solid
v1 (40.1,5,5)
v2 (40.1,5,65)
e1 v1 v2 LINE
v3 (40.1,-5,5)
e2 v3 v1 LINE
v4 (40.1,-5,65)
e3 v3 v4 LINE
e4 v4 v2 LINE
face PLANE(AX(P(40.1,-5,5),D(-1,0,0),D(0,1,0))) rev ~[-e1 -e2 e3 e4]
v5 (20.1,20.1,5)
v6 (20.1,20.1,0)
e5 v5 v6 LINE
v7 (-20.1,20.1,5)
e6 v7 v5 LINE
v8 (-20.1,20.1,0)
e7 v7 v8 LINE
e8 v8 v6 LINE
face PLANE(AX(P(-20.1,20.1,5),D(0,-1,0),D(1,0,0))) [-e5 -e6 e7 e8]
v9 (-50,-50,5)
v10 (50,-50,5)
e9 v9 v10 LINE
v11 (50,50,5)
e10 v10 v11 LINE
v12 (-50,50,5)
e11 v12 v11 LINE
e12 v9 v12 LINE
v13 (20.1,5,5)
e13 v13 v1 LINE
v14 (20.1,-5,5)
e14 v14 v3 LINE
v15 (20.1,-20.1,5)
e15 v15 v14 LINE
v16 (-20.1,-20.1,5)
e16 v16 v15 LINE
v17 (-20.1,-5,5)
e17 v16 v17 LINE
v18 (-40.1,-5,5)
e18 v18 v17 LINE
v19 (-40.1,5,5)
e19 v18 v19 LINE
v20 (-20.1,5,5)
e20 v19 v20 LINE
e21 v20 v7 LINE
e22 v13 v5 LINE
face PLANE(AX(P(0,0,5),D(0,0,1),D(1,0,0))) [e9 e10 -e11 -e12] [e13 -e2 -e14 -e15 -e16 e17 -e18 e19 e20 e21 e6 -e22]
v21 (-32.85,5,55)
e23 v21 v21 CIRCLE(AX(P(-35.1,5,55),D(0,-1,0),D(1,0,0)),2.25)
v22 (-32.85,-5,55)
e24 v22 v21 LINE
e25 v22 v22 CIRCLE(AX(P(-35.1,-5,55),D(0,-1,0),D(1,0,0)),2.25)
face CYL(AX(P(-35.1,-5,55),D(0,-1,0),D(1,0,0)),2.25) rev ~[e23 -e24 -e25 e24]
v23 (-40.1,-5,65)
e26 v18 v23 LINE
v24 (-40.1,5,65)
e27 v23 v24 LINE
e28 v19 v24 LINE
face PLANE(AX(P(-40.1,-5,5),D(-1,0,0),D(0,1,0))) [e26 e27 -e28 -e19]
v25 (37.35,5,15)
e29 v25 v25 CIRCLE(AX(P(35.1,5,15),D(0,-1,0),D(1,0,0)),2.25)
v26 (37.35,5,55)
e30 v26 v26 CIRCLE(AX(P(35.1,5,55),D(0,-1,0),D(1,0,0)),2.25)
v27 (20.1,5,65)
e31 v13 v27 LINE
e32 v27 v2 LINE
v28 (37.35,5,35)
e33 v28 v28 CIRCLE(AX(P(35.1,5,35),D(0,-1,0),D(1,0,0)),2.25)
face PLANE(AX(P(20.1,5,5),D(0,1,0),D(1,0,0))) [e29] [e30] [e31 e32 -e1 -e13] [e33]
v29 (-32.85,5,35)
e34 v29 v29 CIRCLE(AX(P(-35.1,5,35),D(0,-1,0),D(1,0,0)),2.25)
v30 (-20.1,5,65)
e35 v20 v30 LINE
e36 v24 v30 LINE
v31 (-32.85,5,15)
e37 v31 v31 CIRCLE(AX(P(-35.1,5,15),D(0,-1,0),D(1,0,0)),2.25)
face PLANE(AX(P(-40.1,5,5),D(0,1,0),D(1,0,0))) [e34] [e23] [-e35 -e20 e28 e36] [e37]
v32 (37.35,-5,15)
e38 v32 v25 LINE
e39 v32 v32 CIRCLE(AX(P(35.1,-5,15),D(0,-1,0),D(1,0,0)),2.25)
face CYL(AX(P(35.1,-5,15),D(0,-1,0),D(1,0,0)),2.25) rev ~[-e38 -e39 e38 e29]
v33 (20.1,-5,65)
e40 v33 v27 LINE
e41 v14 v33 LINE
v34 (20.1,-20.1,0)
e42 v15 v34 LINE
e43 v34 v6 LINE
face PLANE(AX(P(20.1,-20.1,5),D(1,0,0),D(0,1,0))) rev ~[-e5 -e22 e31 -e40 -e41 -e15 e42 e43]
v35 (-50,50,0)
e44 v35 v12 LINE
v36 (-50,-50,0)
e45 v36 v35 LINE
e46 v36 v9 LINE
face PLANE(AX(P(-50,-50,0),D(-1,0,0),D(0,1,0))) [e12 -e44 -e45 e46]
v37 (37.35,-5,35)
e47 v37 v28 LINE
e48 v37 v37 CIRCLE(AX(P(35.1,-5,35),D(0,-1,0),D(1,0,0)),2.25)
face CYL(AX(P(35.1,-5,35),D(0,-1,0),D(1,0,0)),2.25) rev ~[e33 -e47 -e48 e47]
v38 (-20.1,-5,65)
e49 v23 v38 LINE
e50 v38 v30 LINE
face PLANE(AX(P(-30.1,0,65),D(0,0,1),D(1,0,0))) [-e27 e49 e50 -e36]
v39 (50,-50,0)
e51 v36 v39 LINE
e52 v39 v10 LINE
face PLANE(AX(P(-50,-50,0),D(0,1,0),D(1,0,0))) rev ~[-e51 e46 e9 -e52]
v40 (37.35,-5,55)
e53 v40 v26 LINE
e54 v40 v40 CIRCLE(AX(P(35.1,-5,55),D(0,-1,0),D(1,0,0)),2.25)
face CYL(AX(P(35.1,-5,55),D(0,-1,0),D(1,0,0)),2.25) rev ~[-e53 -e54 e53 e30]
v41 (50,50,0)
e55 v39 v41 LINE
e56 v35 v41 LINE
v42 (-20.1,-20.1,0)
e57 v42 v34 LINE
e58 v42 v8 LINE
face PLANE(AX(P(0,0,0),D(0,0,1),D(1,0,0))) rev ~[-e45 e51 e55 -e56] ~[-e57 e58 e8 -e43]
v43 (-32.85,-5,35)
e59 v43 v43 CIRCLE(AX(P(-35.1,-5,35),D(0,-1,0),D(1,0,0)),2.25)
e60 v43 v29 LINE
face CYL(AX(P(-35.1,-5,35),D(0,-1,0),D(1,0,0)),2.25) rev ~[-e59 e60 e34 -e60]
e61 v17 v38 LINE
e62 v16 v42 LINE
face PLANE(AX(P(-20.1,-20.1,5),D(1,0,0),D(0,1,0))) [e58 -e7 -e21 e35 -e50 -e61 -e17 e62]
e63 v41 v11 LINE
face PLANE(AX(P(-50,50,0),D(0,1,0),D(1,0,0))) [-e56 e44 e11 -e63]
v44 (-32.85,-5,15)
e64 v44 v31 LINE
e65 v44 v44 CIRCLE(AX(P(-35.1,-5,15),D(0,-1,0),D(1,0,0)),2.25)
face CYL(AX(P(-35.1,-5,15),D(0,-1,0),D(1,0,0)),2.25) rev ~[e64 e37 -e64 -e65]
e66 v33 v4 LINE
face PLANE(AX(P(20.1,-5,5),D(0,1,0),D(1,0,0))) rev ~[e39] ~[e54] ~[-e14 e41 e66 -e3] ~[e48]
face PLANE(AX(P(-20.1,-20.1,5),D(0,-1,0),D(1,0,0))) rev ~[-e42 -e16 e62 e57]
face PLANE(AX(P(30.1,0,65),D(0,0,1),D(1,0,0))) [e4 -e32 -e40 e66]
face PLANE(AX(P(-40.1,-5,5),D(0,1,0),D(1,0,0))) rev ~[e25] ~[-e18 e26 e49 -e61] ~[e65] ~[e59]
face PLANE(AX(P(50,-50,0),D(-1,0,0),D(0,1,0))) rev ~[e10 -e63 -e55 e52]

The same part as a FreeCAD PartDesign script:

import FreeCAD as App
import Part
import Sketcher

V = App.Vector
Q = App.Units.Quantity

doc = App.newDocument("Part")
params = doc.addObject("Spreadsheet::Sheet", "Params")
for row, (alias, value) in enumerate([
    ("sketch1_width", "100 mm"),
    ("pad1_length", "5 mm"),
    ("sketch2_width", "40.2 mm"),
    ("pocket1_length", "5 mm"),
    ("sketch3_width", "20 mm"),
    ("sketch3_height", "10 mm"),
    ("pad2_length", "60 mm"),
    ("sketch4_diameter", "4.5 mm"),
    ("pocket2_length", "10 mm"),
], start=1):
    params.set(f"A{row}", alias)
    params.set(f"B{row}", "=" + value)
    params.setAlias(f"B{row}", alias)

body = doc.addObject("PartDesign::Body", "Body")

# Sketch on XY plane
sketch1 = body.newObject("Sketcher::SketchObject", "Sketch")
sketch1.AttachmentSupport = (doc.getObject("XY_Plane"), [""])
sketch1.MapMode = "FlatFace"
sketch1.addGeometry(Part.LineSegment(V(-50, 50, 0), V(-50, -50, 0)), False)
sketch1.addGeometry(Part.LineSegment(V(-50, -50, 0), V(50, -50, 0)), False)
sketch1.addGeometry(Part.LineSegment(V(50, -50, 0), V(50, 50, 0)), False)
sketch1.addGeometry(Part.LineSegment(V(50, 50, 0), V(-50, 50, 0)), False)
sketch1.addConstraint(Sketcher.Constraint("Coincident", 0, 2, 1, 1))
sketch1.addConstraint(Sketcher.Constraint("Coincident", 1, 2, 2, 1))
sketch1.addConstraint(Sketcher.Constraint("Coincident", 2, 2, 3, 1))
sketch1.addConstraint(Sketcher.Constraint("Coincident", 3, 2, 0, 1))
sketch1.addConstraint(Sketcher.Constraint("Vertical", 0))
sketch1.addConstraint(Sketcher.Constraint("Horizontal", 1))
sketch1.addConstraint(Sketcher.Constraint("Vertical", 2))
sketch1.addConstraint(Sketcher.Constraint("Horizontal", 3))
sketch1.addConstraint(Sketcher.Constraint("Symmetric", 0, 2, 2, 2, -1, 1))
sketch1.addConstraint(Sketcher.Constraint("Equal", 3, 0))
sketch1.addConstraint(Sketcher.Constraint("DistanceX", 1, 1, 1, 2, Q("100 mm")))
sketch1.setExpression("Constraints[10]", "Params.sketch1_width")
pad1 = body.newObject("PartDesign::Pad", "Pad")
pad1.Profile = sketch1
pad1.setExpression("Length", "Params.pad1_length")

# Sketch on XY plane
sketch2 = body.newObject("Sketcher::SketchObject", "Sketch001")
sketch2.AttachmentSupport = (doc.getObject("XY_Plane"), [""])
sketch2.MapMode = "FlatFace"
sketch2.AttachmentOffset = App.Placement(V(0, 0, 5), App.Rotation())
sketch2.addGeometry(Part.LineSegment(V(-20.1, 20.1, 0), V(-20.1, -20.1, 0)), False)
sketch2.addGeometry(Part.LineSegment(V(-20.1, -20.1, 0), V(20.1, -20.1, 0)), False)
sketch2.addGeometry(Part.LineSegment(V(20.1, -20.1, 0), V(20.1, 20.1, 0)), False)
sketch2.addGeometry(Part.LineSegment(V(20.1, 20.1, 0), V(-20.1, 20.1, 0)), False)
sketch2.addConstraint(Sketcher.Constraint("Coincident", 0, 2, 1, 1))
sketch2.addConstraint(Sketcher.Constraint("Coincident", 1, 2, 2, 1))
sketch2.addConstraint(Sketcher.Constraint("Coincident", 2, 2, 3, 1))
sketch2.addConstraint(Sketcher.Constraint("Coincident", 3, 2, 0, 1))
sketch2.addConstraint(Sketcher.Constraint("Vertical", 0))
sketch2.addConstraint(Sketcher.Constraint("Horizontal", 1))
sketch2.addConstraint(Sketcher.Constraint("Vertical", 2))
sketch2.addConstraint(Sketcher.Constraint("Horizontal", 3))
sketch2.addConstraint(Sketcher.Constraint("Symmetric", 0, 2, 2, 2, -1, 1))
sketch2.addConstraint(Sketcher.Constraint("Equal", 3, 0))
sketch2.addConstraint(Sketcher.Constraint("DistanceX", 1, 1, 1, 2, Q("40.2 mm")))
sketch2.setExpression("Constraints[10]", "Params.sketch2_width")
pocket1 = body.newObject("PartDesign::Pocket", "Pocket")
pocket1.Profile = sketch2
pocket1.setExpression("Length", "Params.pocket1_length")

# Sketch on XY plane
sketch3 = body.newObject("Sketcher::SketchObject", "Sketch002")
sketch3.AttachmentSupport = (doc.getObject("XY_Plane"), [""])
sketch3.MapMode = "FlatFace"
sketch3.AttachmentOffset = App.Placement(V(0, 0, 5), App.Rotation())
sketch3.addGeometry(Part.LineSegment(V(-40.1, 5, 0), V(-40.1, -5, 0)), False)
sketch3.addGeometry(Part.LineSegment(V(-40.1, -5, 0), V(-20.1, -5, 0)), False)
sketch3.addGeometry(Part.LineSegment(V(-20.1, -5, 0), V(-20.1, 5, 0)), False)
sketch3.addGeometry(Part.LineSegment(V(-20.1, 5, 0), V(-40.1, 5, 0)), False)
sketch3.addGeometry(Part.LineSegment(V(20.1, 5, 0), V(20.1, -5, 0)), False)
sketch3.addGeometry(Part.LineSegment(V(20.1, -5, 0), V(40.1, -5, 0)), False)
sketch3.addGeometry(Part.LineSegment(V(40.1, -5, 0), V(40.1, 5, 0)), False)
sketch3.addGeometry(Part.LineSegment(V(40.1, 5, 0), V(20.1, 5, 0)), False)
sketch3.addConstraint(Sketcher.Constraint("Coincident", 0, 2, 1, 1))
sketch3.addConstraint(Sketcher.Constraint("Coincident", 1, 2, 2, 1))
sketch3.addConstraint(Sketcher.Constraint("Coincident", 2, 2, 3, 1))
sketch3.addConstraint(Sketcher.Constraint("Coincident", 3, 2, 0, 1))
sketch3.addConstraint(Sketcher.Constraint("Coincident", 4, 2, 5, 1))
sketch3.addConstraint(Sketcher.Constraint("Coincident", 5, 2, 6, 1))
sketch3.addConstraint(Sketcher.Constraint("Coincident", 6, 2, 7, 1))
sketch3.addConstraint(Sketcher.Constraint("Coincident", 7, 2, 4, 1))
sketch3.addConstraint(Sketcher.Constraint("Vertical", 0))
sketch3.addConstraint(Sketcher.Constraint("Horizontal", 1))
sketch3.addConstraint(Sketcher.Constraint("Vertical", 2))
sketch3.addConstraint(Sketcher.Constraint("Horizontal", 3))
sketch3.addConstraint(Sketcher.Constraint("Vertical", 4))
sketch3.addConstraint(Sketcher.Constraint("Horizontal", 5))
sketch3.addConstraint(Sketcher.Constraint("Vertical", 6))
sketch3.addConstraint(Sketcher.Constraint("Horizontal", 7))
sketch3.addConstraint(Sketcher.Constraint("Symmetric", 2, 2, 4, 2, -1, 1))
sketch3.addConstraint(Sketcher.Constraint("Symmetric", 0, 2, 6, 2, -1, 1))
sketch3.addConstraint(Sketcher.Constraint("Horizontal", 1, 2, 4, 2))
sketch3.addConstraint(Sketcher.Constraint("DistanceX", 1, 1, 1, 2, Q("20 mm")))
sketch3.addConstraint(Sketcher.Constraint("DistanceY", 0, 2, 0, 1, Q("10 mm")))
sketch3.addConstraint(Sketcher.Constraint("DistanceX", 0, 2, -1, 1, Q("40.1 mm")))
sketch3.setExpression("Constraints[19]", "Params.sketch3_width")
sketch3.setExpression("Constraints[20]", "Params.sketch3_height")
pad2 = body.newObject("PartDesign::Pad", "Pad001")
pad2.Profile = sketch3
pad2.setExpression("Length", "Params.pad2_length")

# Sketch on XZ plane
sketch4 = body.newObject("Sketcher::SketchObject", "Sketch003")
sketch4.AttachmentSupport = (doc.getObject("XZ_Plane"), [""])
sketch4.MapMode = "FlatFace"
sketch4.AttachmentOffset = App.Placement(V(0, 0, 5), App.Rotation())
sketch4.addGeometry(Part.Circle(V(-35.1, 15, 0), V(0, 0, 1), 2.25), False)
sketch4.addGeometry(Part.Circle(V(35.1, 15, 0), V(0, 0, 1), 2.25), False)
sketch4.addGeometry(Part.Circle(V(-35.1, 35, 0), V(0, 0, 1), 2.25), False)
sketch4.addGeometry(Part.Circle(V(-35.1, 55, 0), V(0, 0, 1), 2.25), False)
sketch4.addGeometry(Part.Circle(V(-35.1, 75, 0), V(0, 0, 1), 2.25), False)
sketch4.addGeometry(Part.Circle(V(35.1, 75, 0), V(0, 0, 1), 2.25), False)
sketch4.addGeometry(Part.Circle(V(35.1, 55, 0), V(0, 0, 1), 2.25), False)
sketch4.addGeometry(Part.Circle(V(35.1, 35, 0), V(0, 0, 1), 2.25), False)
sketch4.addConstraint(Sketcher.Constraint("Equal", 0, 1))
sketch4.addConstraint(Sketcher.Constraint("Equal", 1, 2))
sketch4.addConstraint(Sketcher.Constraint("Equal", 2, 3))
sketch4.addConstraint(Sketcher.Constraint("Equal", 3, 4))
sketch4.addConstraint(Sketcher.Constraint("Equal", 4, 5))
sketch4.addConstraint(Sketcher.Constraint("Equal", 5, 6))
sketch4.addConstraint(Sketcher.Constraint("Equal", 6, 7))
sketch4.addConstraint(Sketcher.Constraint("Symmetric", 0, 3, 1, 3, -2))
sketch4.addConstraint(Sketcher.Constraint("Symmetric", 4, 3, 5, 3, -2))
sketch4.addConstraint(Sketcher.Constraint("Symmetric", 3, 3, 6, 3, -2))
sketch4.addConstraint(Sketcher.Constraint("Symmetric", 2, 3, 7, 3, -2))
sketch4.addConstraint(Sketcher.Constraint("Vertical", 0, 3, 2, 3))
sketch4.addConstraint(Sketcher.Constraint("Vertical", 2, 3, 3, 3))
sketch4.addConstraint(Sketcher.Constraint("Vertical", 3, 3, 4, 3))
sketch4.addConstraint(Sketcher.Constraint("Diameter", 0, Q("4.5 mm")))
sketch4.addConstraint(Sketcher.Constraint("DistanceY", -1, 1, 0, 3, Q("15 mm")))
sketch4.addConstraint(Sketcher.Constraint("DistanceY", -1, 1, 2, 3, Q("35 mm")))
sketch4.addConstraint(Sketcher.Constraint("DistanceY", -1, 1, 3, 3, Q("55 mm")))
sketch4.addConstraint(Sketcher.Constraint("DistanceY", -1, 1, 4, 3, Q("75 mm")))
sketch4.addConstraint(Sketcher.Constraint("DistanceX", 0, 3, -1, 1, Q("35.1 mm")))
sketch4.setExpression("Constraints[14]", "Params.sketch4_diameter")
pocket2 = body.newObject("PartDesign::Pocket", "Pocket001")
pocket2.Profile = sketch4
pocket2.setExpression("Length", "Params.pocket2_length")

doc.recompute()
